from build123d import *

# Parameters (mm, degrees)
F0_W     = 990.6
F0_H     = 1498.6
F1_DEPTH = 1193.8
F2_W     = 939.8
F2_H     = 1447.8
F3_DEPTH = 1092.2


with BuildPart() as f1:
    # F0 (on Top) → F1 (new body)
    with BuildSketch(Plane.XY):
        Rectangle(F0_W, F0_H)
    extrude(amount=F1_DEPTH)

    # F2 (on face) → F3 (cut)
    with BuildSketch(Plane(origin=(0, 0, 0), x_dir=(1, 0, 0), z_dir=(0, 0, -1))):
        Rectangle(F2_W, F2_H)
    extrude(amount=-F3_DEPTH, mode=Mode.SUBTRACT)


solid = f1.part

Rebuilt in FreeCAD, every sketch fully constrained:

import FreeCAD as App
import Part
import Sketcher
from FreeCAD import Vector
Q = App.Units.Quantity


def add_polygon(sketch, points):
    """Adds a closed chain of lines whose ends are joined by coincident constraints."""
    first, n = sketch.GeometryCount, len(points)
    for a, b in zip(points, points[1:] + points[:1]):
        sketch.addGeometry(Part.LineSegment(App.Vector(*a, 0), App.Vector(*b, 0)), False)
    for i in range(n):
        sketch.addConstraint(Sketcher.Constraint("Coincident", first + i, 2, first + (i + 1) % n, 1))

doc = App.newDocument("Part")
body = doc.addObject("PartDesign::Body", "Body")

# Sketch on XY plane
sketch1 = body.newObject("Sketcher::SketchObject", "Sketch")
sketch1.AttachmentSupport = (doc.getObject("XY_Plane"), [""])
sketch1.MapMode = "FlatFace"
add_polygon(sketch1, [(-495, 749), (-495, -749), (495, -749), (495, 749)])  # lines 0-3
sketch1.addConstraint(Sketcher.Constraint("Vertical", 0))
sketch1.addConstraint(Sketcher.Constraint("Horizontal", 1))
sketch1.addConstraint(Sketcher.Constraint("Vertical", 2))
sketch1.addConstraint(Sketcher.Constraint("Horizontal", 3))
sketch1.addConstraint(Sketcher.Constraint("Symmetric", 0, 2, 2, 2, -1, 1))
sketch1.addConstraint(Sketcher.Constraint("DistanceX", 1, 1, 1, 2, Q("39 in")))
sketch1.addConstraint(Sketcher.Constraint("DistanceY", 0, 2, 0, 1, Q("59 in")))
pad1 = body.newObject("PartDesign::Pad", "Pad")
pad1.Profile = sketch1
pad1.Length = Q("47 in")

# Sketch on XY plane
sketch2 = body.newObject("Sketcher::SketchObject", "Sketch001")
sketch2.AttachmentSupport = (doc.getObject("XY_Plane"), [""])
sketch2.MapMode = "FlatFace"
add_polygon(sketch2, [(-470, -724), (-470, 724), (470, 724), (470, -724)])  # lines 0-3
sketch2.addConstraint(Sketcher.Constraint("Vertical", 0))
sketch2.addConstraint(Sketcher.Constraint("Horizontal", 1))
sketch2.addConstraint(Sketcher.Constraint("Vertical", 2))
sketch2.addConstraint(Sketcher.Constraint("Horizontal", 3))
sketch2.addConstraint(Sketcher.Constraint("Symmetric", 0, 2, 2, 2, -1, 1))
sketch2.addConstraint(Sketcher.Constraint("DistanceX", 1, 1, 1, 2, Q("37 in")))
sketch2.addConstraint(Sketcher.Constraint("DistanceY", 0, 1, 0, 2, Q("57 in")))
pocket1 = body.newObject("PartDesign::Pocket", "Pocket")
pocket1.Profile = sketch2
pocket1.Length = Q("43 in")
pocket1.Reversed = True

doc.recompute()
